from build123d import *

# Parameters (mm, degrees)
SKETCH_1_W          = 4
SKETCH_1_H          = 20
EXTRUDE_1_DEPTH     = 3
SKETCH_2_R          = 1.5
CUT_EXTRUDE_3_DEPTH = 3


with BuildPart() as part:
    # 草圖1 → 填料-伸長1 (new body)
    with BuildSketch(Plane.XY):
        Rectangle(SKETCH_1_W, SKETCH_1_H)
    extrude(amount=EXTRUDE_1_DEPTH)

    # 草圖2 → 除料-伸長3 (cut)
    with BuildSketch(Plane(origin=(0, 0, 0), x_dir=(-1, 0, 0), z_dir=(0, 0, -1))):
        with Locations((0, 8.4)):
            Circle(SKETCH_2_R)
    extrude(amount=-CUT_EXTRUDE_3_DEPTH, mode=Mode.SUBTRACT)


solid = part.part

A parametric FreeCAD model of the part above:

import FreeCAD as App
import Part
import Sketcher
from FreeCAD import Vector
Q = App.Units.Quantity

doc = App.newDocument("Part")
body = doc.addObject("PartDesign::Body", "Body")

# Sketch on XY plane
sketch1 = doc.addObject("Sketcher::SketchObject", "Sketch")
body.addObject(sketch1)
sketch1.AttachmentSupport = (doc.XY_Plane, [""])
sketch1.MapMode = "FlatFace"
sketch1.addGeometry([
    Part.LineSegment(Vector(-2, 10, 0), Vector(-2, -10, 0)),
    Part.LineSegment(Vector(-2, -10, 0), Vector(2, -10, 0)),
    Part.LineSegment(Vector(2, -10, 0), Vector(2, 10, 0)),
    Part.LineSegment(Vector(2, 10, 0), Vector(-2, 10, 0)),
], False)
sketch1.addConstraint([
    Sketcher.Constraint("Coincident", 0, 2, 1, 1),
    Sketcher.Constraint("Coincident", 1, 2, 2, 1),
    Sketcher.Constraint("Coincident", 2, 2, 3, 1),
    Sketcher.Constraint("Coincident", 3, 2, 0, 1),
    Sketcher.Constraint("Vertical", 0),
    Sketcher.Constraint("Horizontal", 1),
    Sketcher.Constraint("Vertical", 2),
    Sketcher.Constraint("Horizontal", 3),
    Sketcher.Constraint("Symmetric", 0, 2, 2, 2, -1, 1),
    Sketcher.Constraint("DistanceX", 1, 1, 1, 2, Q("4 mm")),
    Sketcher.Constraint("DistanceY", 0, 2, 0, 1, Q("20 mm")),
])
pad1 = doc.addObject("PartDesign::Pad", "Pad")
body.addObject(pad1)
pad1.Profile = sketch1
pad1.Length = 3

# Sketch on XY plane
sketch2 = doc.addObject("Sketcher::SketchObject", "Sketch001")
body.addObject(sketch2)
sketch2.AttachmentSupport = (doc.XY_Plane, [""])
sketch2.MapMode = "FlatFace"
sketch2.addGeometry(Part.Circle(Vector(0, 8.4, 0), Vector(0, 0, 1), 1.5), False)
sketch2.addConstraint([
    Sketcher.Constraint("PointOnObject", 0, 3, -2),
    Sketcher.Constraint("Diameter", 0, Q("3 mm")),
    Sketcher.Constraint("DistanceY", -1, 1, 0, 3, Q("8.4 mm")),
])
pocket1 = doc.addObject("PartDesign::Pocket", "Pocket")
body.addObject(pocket1)
pocket1.Profile = sketch2
pocket1.Length = 3
pocket1.Reversed = True

doc.recompute()
